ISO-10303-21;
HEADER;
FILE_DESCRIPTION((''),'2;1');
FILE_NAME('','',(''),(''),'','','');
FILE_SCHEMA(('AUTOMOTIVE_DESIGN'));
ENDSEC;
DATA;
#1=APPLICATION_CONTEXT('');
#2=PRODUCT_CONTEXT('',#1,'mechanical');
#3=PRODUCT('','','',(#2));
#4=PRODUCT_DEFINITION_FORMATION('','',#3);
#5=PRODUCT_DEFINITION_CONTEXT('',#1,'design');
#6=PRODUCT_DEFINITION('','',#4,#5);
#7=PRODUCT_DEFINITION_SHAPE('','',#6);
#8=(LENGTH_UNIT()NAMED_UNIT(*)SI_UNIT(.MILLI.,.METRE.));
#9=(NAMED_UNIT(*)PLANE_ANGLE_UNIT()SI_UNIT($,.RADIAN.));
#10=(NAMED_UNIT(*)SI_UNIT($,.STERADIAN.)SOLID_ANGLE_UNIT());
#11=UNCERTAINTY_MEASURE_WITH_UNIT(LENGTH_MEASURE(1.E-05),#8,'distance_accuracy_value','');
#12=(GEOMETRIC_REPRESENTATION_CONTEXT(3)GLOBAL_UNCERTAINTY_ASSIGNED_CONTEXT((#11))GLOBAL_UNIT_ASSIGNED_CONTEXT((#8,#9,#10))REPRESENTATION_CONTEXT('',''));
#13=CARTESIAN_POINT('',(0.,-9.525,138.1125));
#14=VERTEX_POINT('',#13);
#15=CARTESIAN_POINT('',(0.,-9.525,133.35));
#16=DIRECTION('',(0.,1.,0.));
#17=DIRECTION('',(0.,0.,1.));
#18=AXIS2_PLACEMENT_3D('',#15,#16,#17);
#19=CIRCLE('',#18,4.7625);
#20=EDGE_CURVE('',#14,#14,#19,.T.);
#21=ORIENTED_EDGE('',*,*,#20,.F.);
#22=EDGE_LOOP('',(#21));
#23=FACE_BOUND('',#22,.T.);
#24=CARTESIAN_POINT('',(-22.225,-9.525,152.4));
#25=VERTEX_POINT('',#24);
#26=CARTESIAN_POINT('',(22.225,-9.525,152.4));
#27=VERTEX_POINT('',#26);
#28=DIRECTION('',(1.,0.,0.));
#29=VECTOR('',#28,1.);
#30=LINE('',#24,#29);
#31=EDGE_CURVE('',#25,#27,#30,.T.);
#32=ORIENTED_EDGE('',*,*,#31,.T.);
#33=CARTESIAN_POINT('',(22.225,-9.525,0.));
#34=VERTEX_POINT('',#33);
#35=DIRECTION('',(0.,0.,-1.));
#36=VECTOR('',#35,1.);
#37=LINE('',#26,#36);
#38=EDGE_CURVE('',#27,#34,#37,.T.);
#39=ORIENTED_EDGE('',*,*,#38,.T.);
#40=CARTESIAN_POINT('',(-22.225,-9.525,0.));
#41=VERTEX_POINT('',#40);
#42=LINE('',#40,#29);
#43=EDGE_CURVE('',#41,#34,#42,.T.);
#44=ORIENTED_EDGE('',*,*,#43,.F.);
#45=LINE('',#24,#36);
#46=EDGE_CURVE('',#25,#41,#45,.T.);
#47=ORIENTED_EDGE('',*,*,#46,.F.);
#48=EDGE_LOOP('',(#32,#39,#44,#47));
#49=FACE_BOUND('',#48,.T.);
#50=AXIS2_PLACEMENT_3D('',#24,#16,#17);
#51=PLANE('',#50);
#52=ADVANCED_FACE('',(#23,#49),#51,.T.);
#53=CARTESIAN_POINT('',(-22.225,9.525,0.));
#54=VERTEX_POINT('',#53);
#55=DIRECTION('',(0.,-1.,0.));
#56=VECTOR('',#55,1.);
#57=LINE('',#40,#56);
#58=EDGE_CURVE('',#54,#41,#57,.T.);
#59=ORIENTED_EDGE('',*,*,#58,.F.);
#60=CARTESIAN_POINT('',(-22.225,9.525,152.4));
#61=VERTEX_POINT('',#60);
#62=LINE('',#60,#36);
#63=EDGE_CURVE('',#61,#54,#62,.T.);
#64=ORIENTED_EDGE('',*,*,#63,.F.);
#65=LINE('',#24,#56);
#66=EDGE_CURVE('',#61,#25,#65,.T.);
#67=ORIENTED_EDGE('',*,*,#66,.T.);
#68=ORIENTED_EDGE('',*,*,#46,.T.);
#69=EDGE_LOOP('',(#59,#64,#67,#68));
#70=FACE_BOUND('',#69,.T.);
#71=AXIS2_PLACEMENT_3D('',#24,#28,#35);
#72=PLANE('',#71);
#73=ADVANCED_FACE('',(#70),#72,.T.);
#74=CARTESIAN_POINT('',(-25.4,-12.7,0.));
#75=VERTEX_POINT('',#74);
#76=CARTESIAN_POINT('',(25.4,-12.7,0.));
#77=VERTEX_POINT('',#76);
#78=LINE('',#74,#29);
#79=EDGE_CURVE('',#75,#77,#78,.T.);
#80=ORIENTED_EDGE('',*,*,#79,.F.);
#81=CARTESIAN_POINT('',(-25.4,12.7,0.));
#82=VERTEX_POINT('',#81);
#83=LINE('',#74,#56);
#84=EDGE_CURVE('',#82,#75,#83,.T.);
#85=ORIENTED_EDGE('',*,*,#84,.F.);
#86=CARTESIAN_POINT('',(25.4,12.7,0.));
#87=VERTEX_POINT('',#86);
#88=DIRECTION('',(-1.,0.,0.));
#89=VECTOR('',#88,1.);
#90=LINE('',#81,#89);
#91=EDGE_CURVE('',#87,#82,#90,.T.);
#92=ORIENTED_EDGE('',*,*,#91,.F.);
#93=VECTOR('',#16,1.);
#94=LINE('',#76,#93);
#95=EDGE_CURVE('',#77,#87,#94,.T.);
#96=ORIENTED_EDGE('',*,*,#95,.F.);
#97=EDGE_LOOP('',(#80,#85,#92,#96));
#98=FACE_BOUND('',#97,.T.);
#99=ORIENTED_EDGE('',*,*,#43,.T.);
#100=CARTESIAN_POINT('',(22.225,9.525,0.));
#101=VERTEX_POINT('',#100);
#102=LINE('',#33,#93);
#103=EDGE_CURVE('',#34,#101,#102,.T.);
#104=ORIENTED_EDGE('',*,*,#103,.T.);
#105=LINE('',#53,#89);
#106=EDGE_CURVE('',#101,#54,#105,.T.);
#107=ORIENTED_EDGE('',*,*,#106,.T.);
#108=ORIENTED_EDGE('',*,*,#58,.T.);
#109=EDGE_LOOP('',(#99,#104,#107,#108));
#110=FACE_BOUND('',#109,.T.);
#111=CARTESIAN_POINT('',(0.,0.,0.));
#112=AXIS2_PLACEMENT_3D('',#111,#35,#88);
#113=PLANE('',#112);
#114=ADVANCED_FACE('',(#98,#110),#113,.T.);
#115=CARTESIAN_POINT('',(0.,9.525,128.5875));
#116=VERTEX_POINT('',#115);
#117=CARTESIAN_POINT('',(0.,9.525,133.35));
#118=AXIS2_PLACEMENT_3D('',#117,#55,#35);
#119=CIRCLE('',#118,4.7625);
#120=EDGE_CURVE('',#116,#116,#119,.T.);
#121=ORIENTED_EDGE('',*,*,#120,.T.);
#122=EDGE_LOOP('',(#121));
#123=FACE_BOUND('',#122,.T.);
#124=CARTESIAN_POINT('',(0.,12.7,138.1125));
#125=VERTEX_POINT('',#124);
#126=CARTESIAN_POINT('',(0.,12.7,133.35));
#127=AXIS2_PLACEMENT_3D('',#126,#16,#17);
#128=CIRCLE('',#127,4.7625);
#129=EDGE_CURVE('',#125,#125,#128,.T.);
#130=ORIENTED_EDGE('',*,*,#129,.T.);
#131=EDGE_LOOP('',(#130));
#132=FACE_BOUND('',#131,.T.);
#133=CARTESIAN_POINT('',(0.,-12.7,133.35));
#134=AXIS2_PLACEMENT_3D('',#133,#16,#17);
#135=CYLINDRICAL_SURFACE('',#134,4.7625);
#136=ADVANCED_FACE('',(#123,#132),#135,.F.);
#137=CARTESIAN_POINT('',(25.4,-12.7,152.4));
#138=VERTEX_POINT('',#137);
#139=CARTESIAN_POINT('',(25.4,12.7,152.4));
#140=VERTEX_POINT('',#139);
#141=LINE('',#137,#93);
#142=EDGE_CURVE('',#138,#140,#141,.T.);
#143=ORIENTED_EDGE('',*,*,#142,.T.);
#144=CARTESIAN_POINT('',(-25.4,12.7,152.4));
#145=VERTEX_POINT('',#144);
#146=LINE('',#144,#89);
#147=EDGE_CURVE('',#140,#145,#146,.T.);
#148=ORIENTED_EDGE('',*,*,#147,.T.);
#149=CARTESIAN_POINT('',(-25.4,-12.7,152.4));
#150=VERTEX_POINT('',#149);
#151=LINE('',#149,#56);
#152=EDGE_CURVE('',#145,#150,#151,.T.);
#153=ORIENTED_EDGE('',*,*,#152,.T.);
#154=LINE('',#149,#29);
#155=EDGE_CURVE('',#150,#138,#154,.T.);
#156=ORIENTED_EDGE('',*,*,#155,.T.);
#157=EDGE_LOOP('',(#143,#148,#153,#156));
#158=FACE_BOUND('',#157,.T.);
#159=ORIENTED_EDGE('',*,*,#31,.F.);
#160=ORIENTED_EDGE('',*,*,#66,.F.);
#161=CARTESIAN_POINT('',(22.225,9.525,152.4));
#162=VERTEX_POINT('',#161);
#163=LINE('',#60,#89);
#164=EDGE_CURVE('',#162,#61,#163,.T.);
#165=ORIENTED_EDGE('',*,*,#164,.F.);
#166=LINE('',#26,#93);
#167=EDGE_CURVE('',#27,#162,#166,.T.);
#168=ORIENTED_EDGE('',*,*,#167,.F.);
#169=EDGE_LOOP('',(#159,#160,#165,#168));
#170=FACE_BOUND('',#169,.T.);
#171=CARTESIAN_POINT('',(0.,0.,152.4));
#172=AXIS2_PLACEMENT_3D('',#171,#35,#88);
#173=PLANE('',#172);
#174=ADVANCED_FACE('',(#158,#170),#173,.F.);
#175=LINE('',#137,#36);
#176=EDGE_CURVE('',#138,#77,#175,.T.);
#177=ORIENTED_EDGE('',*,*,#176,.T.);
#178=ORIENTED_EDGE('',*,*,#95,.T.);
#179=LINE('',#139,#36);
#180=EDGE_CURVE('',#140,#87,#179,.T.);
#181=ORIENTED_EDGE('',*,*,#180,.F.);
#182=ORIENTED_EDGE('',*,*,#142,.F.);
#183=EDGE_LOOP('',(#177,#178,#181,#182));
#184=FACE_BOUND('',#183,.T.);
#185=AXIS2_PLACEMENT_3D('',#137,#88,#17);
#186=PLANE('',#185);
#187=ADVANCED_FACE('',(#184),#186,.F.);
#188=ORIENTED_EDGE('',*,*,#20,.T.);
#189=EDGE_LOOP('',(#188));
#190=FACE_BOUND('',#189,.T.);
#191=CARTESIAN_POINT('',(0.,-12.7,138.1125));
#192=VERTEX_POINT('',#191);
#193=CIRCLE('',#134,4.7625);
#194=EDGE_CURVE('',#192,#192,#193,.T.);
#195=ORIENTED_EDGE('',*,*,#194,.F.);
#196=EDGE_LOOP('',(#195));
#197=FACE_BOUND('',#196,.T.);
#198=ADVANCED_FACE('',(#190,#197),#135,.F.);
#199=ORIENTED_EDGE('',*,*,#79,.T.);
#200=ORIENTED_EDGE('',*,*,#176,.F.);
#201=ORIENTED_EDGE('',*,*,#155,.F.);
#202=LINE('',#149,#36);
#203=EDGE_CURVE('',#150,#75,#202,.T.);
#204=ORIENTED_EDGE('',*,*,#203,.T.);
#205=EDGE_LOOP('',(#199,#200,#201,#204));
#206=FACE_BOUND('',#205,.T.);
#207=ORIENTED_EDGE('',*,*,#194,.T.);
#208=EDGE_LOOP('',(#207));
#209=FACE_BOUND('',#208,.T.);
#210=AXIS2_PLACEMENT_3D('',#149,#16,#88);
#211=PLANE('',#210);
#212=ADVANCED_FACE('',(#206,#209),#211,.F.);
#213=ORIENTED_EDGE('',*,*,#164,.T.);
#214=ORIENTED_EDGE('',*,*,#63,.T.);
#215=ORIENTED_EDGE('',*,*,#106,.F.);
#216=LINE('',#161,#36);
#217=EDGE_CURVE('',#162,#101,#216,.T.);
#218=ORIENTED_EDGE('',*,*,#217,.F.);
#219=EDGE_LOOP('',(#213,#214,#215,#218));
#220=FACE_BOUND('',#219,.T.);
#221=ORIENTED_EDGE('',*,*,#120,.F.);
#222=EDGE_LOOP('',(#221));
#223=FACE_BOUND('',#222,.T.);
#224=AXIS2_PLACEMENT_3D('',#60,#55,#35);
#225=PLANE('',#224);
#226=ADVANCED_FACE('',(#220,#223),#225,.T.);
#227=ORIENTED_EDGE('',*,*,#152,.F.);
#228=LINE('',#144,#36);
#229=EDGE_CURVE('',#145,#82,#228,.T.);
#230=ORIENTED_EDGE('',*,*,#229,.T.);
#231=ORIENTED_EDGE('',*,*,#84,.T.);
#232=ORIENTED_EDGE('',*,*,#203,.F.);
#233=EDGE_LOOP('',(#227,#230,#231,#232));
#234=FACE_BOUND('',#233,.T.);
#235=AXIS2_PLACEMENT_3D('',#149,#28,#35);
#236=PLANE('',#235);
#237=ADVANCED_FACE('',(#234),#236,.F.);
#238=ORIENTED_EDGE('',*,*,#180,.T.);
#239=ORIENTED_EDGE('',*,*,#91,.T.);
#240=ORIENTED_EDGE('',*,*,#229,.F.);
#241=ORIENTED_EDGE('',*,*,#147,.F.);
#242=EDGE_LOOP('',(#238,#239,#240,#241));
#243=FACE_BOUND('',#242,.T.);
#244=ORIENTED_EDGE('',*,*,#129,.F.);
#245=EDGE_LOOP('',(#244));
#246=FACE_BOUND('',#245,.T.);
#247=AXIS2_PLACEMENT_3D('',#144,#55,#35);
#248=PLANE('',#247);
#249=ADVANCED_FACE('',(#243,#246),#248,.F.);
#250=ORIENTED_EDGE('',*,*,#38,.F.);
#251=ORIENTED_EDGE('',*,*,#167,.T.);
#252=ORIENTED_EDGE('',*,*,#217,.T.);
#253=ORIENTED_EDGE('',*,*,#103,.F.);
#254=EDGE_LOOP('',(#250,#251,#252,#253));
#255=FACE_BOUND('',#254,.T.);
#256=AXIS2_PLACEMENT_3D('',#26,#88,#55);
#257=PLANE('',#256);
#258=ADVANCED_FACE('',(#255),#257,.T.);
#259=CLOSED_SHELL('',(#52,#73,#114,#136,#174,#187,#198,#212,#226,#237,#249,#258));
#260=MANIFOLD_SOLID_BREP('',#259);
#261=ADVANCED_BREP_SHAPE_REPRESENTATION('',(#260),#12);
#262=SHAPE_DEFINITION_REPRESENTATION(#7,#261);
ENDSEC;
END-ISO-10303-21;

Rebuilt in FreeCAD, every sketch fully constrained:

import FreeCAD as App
import Part
import Sketcher
Q = App.Units.Quantity


def add_polygon(sketch, points):
    """Adds a closed chain of lines whose ends are joined by coincident constraints."""
    first, n = sketch.GeometryCount, len(points)
    for a, b in zip(points, points[1:] + points[:1]):
        sketch.addGeometry(Part.LineSegment(App.Vector(*a, 0), App.Vector(*b, 0)), False)
    for i in range(n):
        sketch.addConstraint(Sketcher.Constraint("Coincident", first + i, 2, first + (i + 1) % n, 1))

doc = App.newDocument("Part")
body = doc.addObject("PartDesign::Body", "Body")

# Sketch on XY plane
sketch1 = body.newObject("Sketcher::SketchObject", "Sketch")
sketch1.AttachmentSupport = (doc.getObject("XY_Plane"), [""])
sketch1.MapMode = "FlatFace"
add_polygon(sketch1, [(-25, 13), (-25, -13), (25, -13), (25, 13)])  # lines 0-3
add_polygon(sketch1, [(22, -10), (-22, -10), (-22, 10), (22, 10)])  # lines 4-7
sketch1.addConstraint(Sketcher.Constraint("Vertical", 0))
sketch1.addConstraint(Sketcher.Constraint("Horizontal", 1))
sketch1.addConstraint(Sketcher.Constraint("Vertical", 2))
sketch1.addConstraint(Sketcher.Constraint("Horizontal", 3))
sketch1.addConstraint(Sketcher.Constraint("Horizontal", 4))
sketch1.addConstraint(Sketcher.Constraint("Vertical", 5))
sketch1.addConstraint(Sketcher.Constraint("Horizontal", 6))
sketch1.addConstraint(Sketcher.Constraint("Vertical", 7))
sketch1.addConstraint(Sketcher.Constraint("Symmetric", 0, 2, 2, 2, -1, 1))
sketch1.addConstraint(Sketcher.Constraint("Symmetric", 4, 2, 6, 2, -1, 1))
sketch1.addConstraint(Sketcher.Constraint("DistanceX", 1, 1, 1, 2, Q("2 in")))
sketch1.addConstraint(Sketcher.Constraint("DistanceY", 0, 2, 0, 1, Q("1 in")))
sketch1.addConstraint(Sketcher.Constraint("DistanceX", 4, 2, 4, 1, Q("1.75 in")))
sketch1.addConstraint(Sketcher.Constraint("DistanceY", 5, 1, 5, 2, Q("0.75 in")))
pad1 = body.newObject("PartDesign::Pad", "Pad")
pad1.Profile = sketch1
pad1.Length = Q("6 in")

# Sketch on XZ plane
sketch2 = body.newObject("Sketcher::SketchObject", "Sketch001")
sketch2.AttachmentSupport = (doc.getObject("XZ_Plane"), [""])
sketch2.MapMode = "FlatFace"
sketch2.AttachmentOffset = App.Placement(App.Vector(0, 0, -0.5 * 25.4), App.Rotation())
sketch2.addGeometry(Part.Circle(App.Vector(0, 133.3, 0), App.Vector(0, 0, 1), 4.8), False)
sketch2.addConstraint(Sketcher.Constraint("PointOnObject", 0, 3, -2))
sketch2.addConstraint(Sketcher.Constraint("Diameter", 0, Q("0.375 in")))
sketch2.addConstraint(Sketcher.Constraint("DistanceY", -1, 1, 0, 3, Q("5.25 in")))
pocket1 = body.newObject("PartDesign::Pocket", "Pocket")
pocket1.Profile = sketch2
pocket1.Type = "ThroughAll"
pocket1.Reversed = True

doc.recompute()
